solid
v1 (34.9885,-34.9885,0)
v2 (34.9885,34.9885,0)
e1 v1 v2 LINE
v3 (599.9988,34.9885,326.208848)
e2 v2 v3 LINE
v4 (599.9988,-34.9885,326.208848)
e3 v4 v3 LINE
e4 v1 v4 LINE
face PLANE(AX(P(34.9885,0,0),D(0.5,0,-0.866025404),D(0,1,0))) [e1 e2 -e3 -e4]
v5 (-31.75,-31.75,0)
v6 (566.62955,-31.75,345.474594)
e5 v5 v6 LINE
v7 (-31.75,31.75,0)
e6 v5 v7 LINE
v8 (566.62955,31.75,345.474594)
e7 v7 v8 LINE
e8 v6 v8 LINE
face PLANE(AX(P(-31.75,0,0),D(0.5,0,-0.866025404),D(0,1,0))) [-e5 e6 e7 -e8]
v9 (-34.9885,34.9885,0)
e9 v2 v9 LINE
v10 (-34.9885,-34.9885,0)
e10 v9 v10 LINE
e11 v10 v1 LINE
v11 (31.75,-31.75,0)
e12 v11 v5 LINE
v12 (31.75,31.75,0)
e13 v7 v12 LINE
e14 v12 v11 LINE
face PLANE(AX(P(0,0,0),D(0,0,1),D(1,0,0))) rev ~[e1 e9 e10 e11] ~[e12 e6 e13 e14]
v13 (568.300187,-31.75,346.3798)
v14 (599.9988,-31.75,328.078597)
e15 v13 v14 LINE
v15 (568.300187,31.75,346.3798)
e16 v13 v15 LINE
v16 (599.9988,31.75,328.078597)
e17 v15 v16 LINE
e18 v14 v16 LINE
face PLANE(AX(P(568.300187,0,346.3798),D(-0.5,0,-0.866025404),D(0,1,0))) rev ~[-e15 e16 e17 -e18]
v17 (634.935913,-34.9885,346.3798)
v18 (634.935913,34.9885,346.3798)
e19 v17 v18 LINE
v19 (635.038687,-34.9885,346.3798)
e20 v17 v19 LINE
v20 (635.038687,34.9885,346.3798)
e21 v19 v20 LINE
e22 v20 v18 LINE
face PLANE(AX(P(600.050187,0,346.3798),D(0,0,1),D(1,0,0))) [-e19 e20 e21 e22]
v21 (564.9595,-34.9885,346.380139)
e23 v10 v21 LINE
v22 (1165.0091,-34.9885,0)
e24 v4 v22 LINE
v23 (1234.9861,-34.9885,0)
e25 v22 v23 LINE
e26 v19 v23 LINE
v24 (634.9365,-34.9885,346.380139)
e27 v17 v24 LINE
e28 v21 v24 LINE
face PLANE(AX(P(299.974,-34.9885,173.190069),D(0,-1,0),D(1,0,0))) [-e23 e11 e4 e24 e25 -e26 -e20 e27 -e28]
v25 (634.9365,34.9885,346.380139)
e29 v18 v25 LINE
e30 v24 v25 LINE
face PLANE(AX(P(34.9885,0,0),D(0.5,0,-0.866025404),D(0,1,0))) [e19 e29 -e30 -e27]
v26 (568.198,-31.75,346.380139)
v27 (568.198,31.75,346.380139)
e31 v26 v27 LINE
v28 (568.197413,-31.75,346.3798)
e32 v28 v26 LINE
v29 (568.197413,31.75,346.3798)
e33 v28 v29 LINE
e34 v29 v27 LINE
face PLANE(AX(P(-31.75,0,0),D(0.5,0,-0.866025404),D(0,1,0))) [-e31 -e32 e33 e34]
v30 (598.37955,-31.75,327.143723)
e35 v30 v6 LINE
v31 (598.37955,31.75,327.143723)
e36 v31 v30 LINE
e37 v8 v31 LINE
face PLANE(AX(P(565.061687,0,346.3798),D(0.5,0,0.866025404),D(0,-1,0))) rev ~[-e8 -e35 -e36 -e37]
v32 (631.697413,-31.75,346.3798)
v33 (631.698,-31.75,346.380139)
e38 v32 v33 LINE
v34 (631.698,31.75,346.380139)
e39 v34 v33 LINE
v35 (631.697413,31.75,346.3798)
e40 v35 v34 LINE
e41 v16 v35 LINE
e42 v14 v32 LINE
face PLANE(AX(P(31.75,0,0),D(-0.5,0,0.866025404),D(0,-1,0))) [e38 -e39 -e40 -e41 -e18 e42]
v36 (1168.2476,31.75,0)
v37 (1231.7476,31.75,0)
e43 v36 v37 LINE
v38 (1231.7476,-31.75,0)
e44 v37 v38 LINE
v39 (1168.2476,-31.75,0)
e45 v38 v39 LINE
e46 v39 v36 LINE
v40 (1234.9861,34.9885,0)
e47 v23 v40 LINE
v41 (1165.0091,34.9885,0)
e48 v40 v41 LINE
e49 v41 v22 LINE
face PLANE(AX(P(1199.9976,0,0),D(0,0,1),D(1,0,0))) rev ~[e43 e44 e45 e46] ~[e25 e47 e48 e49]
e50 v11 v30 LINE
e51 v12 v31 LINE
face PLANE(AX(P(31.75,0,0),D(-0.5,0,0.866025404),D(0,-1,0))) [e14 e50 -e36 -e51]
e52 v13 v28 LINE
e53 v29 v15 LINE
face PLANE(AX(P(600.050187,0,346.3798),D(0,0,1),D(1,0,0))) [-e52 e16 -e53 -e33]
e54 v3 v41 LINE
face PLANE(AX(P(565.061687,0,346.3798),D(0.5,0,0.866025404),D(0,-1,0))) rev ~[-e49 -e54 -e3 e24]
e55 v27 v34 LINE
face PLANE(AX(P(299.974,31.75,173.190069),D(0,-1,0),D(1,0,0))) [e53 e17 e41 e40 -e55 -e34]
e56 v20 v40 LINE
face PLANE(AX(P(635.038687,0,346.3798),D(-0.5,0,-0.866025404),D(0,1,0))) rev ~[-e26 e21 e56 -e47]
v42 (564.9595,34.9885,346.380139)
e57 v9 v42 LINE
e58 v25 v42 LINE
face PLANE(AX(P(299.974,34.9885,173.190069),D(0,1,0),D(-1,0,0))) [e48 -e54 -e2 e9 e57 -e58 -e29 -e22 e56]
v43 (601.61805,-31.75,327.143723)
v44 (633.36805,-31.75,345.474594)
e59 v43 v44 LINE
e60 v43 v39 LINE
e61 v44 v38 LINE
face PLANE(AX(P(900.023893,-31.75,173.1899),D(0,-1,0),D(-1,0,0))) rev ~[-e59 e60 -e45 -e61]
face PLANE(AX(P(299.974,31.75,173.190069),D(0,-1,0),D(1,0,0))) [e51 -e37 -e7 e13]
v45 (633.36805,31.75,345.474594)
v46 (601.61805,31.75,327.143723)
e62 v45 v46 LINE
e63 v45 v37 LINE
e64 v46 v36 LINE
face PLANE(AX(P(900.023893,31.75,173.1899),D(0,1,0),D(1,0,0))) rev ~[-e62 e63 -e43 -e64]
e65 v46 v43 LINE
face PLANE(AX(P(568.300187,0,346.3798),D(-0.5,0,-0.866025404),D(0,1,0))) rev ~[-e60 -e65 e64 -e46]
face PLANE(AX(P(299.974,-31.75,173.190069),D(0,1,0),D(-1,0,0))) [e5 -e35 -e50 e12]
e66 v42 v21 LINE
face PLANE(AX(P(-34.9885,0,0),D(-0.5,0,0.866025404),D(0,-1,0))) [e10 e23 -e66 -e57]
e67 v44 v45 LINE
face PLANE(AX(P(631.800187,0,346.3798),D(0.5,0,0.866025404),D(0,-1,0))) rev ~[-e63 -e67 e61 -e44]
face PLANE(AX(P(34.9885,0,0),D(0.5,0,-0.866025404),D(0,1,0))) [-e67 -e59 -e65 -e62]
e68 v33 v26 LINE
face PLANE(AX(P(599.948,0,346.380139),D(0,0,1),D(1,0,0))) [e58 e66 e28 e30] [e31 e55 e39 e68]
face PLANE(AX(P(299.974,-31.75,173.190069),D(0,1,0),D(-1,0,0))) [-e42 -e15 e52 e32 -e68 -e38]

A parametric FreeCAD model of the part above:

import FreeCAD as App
import Part
import Sketcher

V = App.Vector
Q = App.Units.Quantity


def add_polygon(sketch, points):
    """Adds a closed chain of lines whose ends are joined by coincident constraints."""
    first, n = sketch.GeometryCount, len(points)
    for a, b in zip(points, points[1:] + points[:1]):
        sketch.addGeometry(Part.LineSegment(App.Vector(*a, 0), App.Vector(*b, 0)), False)
    for i in range(n):
        sketch.addConstraint(Sketcher.Constraint("Coincident", first + i, 2, first + (i + 1) % n, 1))

doc = App.newDocument("Part")
body = doc.addObject("PartDesign::Body", "Body")

sketch1 = body.newObject("Sketcher::SketchObject", "Sketch")
sketch1.AttachmentSupport = (doc.getObject("XY_Plane"), [""])
sketch1.MapMode = "FlatFace"
add_polygon(sketch1, [(1165, 35), (1165, -35), (1235, -35), (1235, 35)])
add_polygon(sketch1, [(1232, -32), (1168, -32), (1168, 32), (1232, 32)])
sketch1.addConstraint([
    Sketcher.Constraint("Vertical", 0),
    Sketcher.Constraint("Horizontal", 1),
    Sketcher.Constraint("Vertical", 2),
    Sketcher.Constraint("Horizontal", 3),
    Sketcher.Constraint("Horizontal", 4),
    Sketcher.Constraint("Vertical", 5),
    Sketcher.Constraint("Horizontal", 6),
    Sketcher.Constraint("Vertical", 7),
    Sketcher.Constraint("Equal", 3, 0),
    Sketcher.Constraint("Equal", 6, 5),
    Sketcher.Constraint("DistanceX", 4, 2, 4, 1, Q("2.5 in")),
    Sketcher.Constraint("DistanceX", 1, 1, 1, 2, Q("2.755 in")),
    Sketcher.Constraint("DistanceY", 4, 2, -1, 1, Q("1.25 in")),
    Sketcher.Constraint("DistanceX", -1, 1, 4, 2, Q("45.994 in")),
    Sketcher.Constraint("DistanceX", -1, 1, 0, 2, Q("45.8665 in")),
    Sketcher.Constraint("DistanceY", 0, 2, -1, 1, Q("1.3775 in")),
])

sketch2 = body.newObject("Sketcher::SketchObject", "Sketch001")
sketch2.Placement = App.Placement(V(299.973706, 0, 519.5697), App.Rotation(V(0.866025404, 0, -0.5), V(0, 1, 0), V(0.5, 0, 0.866025404), "ZXY"))
sketch2.addGeometry(Part.LineSegment(V(346, 0, 0), V(1039, 0, 0)), False)
sketch2.addConstraint([
    Sketcher.Constraint("Horizontal", 0),
    Sketcher.Constraint("PointOnObject", 0, 1, -1),
    Sketcher.Constraint("DistanceX", 0, 1, 0, 2, Q("27.274 in")),
    Sketcher.Constraint("DistanceX", -1, 1, 0, 1, Q("13.637 in")),
])
doc.recompute()

additivepipe = body.newObject("PartDesign::AdditivePipe", "AdditivePipe")
additivepipe.Profile = sketch1
additivepipe.Spine = (sketch2, ["Edge1"])

sketch3 = body.newObject("Sketcher::SketchObject", "Sketch002")
sketch3.AttachmentSupport = (doc.getObject("XY_Plane"), [""])
sketch3.MapMode = "FlatFace"
add_polygon(sketch3, [(-35, 35), (-35, -35), (35, -35), (35, 35)])
add_polygon(sketch3, [(32, -32), (-32, -32), (-32, 32), (32, 32)])
sketch3.addConstraint([
    Sketcher.Constraint("Vertical", 0),
    Sketcher.Constraint("Horizontal", 1),
    Sketcher.Constraint("Vertical", 2),
    Sketcher.Constraint("Horizontal", 3),
    Sketcher.Constraint("Horizontal", 4),
    Sketcher.Constraint("Vertical", 5),
    Sketcher.Constraint("Horizontal", 6),
    Sketcher.Constraint("Vertical", 7),
    Sketcher.Constraint("Symmetric", 0, 2, 2, 2, -1, 1),
    Sketcher.Constraint("Symmetric", 4, 2, 6, 2, -1, 1),
    Sketcher.Constraint("Equal", 3, 0),
    Sketcher.Constraint("Equal", 6, 5),
    Sketcher.Constraint("DistanceX", 4, 2, 4, 1, Q("2.5 in")),
    Sketcher.Constraint("DistanceX", 1, 1, 1, 2, Q("2.755 in")),
])

sketch4 = body.newObject("Sketcher::SketchObject", "Sketch003")
sketch4.Placement = App.Placement(V(0, 0, 0), App.Rotation(V(0.866025404, 0, 0.5), V(0, 1, 0), V(-0.5, 0, 0.866025404), "ZXY"))
sketch4.addGeometry(Part.LineSegment(V(0, 0, 0), V(693, 0, 0)), False)
sketch4.addConstraint([
    Sketcher.Constraint("Horizontal", 0),
    Sketcher.Constraint("Coincident", 0, 1, -1, 1),
    Sketcher.Constraint("DistanceX", 0, 1, 0, 2, 692.760279),
])
doc.recompute()

additivepipe2 = body.newObject("PartDesign::AdditivePipe", "AdditivePipe001")
additivepipe2.Profile = sketch3
additivepipe2.Spine = (sketch4, ["Edge1"])

doc.recompute()
